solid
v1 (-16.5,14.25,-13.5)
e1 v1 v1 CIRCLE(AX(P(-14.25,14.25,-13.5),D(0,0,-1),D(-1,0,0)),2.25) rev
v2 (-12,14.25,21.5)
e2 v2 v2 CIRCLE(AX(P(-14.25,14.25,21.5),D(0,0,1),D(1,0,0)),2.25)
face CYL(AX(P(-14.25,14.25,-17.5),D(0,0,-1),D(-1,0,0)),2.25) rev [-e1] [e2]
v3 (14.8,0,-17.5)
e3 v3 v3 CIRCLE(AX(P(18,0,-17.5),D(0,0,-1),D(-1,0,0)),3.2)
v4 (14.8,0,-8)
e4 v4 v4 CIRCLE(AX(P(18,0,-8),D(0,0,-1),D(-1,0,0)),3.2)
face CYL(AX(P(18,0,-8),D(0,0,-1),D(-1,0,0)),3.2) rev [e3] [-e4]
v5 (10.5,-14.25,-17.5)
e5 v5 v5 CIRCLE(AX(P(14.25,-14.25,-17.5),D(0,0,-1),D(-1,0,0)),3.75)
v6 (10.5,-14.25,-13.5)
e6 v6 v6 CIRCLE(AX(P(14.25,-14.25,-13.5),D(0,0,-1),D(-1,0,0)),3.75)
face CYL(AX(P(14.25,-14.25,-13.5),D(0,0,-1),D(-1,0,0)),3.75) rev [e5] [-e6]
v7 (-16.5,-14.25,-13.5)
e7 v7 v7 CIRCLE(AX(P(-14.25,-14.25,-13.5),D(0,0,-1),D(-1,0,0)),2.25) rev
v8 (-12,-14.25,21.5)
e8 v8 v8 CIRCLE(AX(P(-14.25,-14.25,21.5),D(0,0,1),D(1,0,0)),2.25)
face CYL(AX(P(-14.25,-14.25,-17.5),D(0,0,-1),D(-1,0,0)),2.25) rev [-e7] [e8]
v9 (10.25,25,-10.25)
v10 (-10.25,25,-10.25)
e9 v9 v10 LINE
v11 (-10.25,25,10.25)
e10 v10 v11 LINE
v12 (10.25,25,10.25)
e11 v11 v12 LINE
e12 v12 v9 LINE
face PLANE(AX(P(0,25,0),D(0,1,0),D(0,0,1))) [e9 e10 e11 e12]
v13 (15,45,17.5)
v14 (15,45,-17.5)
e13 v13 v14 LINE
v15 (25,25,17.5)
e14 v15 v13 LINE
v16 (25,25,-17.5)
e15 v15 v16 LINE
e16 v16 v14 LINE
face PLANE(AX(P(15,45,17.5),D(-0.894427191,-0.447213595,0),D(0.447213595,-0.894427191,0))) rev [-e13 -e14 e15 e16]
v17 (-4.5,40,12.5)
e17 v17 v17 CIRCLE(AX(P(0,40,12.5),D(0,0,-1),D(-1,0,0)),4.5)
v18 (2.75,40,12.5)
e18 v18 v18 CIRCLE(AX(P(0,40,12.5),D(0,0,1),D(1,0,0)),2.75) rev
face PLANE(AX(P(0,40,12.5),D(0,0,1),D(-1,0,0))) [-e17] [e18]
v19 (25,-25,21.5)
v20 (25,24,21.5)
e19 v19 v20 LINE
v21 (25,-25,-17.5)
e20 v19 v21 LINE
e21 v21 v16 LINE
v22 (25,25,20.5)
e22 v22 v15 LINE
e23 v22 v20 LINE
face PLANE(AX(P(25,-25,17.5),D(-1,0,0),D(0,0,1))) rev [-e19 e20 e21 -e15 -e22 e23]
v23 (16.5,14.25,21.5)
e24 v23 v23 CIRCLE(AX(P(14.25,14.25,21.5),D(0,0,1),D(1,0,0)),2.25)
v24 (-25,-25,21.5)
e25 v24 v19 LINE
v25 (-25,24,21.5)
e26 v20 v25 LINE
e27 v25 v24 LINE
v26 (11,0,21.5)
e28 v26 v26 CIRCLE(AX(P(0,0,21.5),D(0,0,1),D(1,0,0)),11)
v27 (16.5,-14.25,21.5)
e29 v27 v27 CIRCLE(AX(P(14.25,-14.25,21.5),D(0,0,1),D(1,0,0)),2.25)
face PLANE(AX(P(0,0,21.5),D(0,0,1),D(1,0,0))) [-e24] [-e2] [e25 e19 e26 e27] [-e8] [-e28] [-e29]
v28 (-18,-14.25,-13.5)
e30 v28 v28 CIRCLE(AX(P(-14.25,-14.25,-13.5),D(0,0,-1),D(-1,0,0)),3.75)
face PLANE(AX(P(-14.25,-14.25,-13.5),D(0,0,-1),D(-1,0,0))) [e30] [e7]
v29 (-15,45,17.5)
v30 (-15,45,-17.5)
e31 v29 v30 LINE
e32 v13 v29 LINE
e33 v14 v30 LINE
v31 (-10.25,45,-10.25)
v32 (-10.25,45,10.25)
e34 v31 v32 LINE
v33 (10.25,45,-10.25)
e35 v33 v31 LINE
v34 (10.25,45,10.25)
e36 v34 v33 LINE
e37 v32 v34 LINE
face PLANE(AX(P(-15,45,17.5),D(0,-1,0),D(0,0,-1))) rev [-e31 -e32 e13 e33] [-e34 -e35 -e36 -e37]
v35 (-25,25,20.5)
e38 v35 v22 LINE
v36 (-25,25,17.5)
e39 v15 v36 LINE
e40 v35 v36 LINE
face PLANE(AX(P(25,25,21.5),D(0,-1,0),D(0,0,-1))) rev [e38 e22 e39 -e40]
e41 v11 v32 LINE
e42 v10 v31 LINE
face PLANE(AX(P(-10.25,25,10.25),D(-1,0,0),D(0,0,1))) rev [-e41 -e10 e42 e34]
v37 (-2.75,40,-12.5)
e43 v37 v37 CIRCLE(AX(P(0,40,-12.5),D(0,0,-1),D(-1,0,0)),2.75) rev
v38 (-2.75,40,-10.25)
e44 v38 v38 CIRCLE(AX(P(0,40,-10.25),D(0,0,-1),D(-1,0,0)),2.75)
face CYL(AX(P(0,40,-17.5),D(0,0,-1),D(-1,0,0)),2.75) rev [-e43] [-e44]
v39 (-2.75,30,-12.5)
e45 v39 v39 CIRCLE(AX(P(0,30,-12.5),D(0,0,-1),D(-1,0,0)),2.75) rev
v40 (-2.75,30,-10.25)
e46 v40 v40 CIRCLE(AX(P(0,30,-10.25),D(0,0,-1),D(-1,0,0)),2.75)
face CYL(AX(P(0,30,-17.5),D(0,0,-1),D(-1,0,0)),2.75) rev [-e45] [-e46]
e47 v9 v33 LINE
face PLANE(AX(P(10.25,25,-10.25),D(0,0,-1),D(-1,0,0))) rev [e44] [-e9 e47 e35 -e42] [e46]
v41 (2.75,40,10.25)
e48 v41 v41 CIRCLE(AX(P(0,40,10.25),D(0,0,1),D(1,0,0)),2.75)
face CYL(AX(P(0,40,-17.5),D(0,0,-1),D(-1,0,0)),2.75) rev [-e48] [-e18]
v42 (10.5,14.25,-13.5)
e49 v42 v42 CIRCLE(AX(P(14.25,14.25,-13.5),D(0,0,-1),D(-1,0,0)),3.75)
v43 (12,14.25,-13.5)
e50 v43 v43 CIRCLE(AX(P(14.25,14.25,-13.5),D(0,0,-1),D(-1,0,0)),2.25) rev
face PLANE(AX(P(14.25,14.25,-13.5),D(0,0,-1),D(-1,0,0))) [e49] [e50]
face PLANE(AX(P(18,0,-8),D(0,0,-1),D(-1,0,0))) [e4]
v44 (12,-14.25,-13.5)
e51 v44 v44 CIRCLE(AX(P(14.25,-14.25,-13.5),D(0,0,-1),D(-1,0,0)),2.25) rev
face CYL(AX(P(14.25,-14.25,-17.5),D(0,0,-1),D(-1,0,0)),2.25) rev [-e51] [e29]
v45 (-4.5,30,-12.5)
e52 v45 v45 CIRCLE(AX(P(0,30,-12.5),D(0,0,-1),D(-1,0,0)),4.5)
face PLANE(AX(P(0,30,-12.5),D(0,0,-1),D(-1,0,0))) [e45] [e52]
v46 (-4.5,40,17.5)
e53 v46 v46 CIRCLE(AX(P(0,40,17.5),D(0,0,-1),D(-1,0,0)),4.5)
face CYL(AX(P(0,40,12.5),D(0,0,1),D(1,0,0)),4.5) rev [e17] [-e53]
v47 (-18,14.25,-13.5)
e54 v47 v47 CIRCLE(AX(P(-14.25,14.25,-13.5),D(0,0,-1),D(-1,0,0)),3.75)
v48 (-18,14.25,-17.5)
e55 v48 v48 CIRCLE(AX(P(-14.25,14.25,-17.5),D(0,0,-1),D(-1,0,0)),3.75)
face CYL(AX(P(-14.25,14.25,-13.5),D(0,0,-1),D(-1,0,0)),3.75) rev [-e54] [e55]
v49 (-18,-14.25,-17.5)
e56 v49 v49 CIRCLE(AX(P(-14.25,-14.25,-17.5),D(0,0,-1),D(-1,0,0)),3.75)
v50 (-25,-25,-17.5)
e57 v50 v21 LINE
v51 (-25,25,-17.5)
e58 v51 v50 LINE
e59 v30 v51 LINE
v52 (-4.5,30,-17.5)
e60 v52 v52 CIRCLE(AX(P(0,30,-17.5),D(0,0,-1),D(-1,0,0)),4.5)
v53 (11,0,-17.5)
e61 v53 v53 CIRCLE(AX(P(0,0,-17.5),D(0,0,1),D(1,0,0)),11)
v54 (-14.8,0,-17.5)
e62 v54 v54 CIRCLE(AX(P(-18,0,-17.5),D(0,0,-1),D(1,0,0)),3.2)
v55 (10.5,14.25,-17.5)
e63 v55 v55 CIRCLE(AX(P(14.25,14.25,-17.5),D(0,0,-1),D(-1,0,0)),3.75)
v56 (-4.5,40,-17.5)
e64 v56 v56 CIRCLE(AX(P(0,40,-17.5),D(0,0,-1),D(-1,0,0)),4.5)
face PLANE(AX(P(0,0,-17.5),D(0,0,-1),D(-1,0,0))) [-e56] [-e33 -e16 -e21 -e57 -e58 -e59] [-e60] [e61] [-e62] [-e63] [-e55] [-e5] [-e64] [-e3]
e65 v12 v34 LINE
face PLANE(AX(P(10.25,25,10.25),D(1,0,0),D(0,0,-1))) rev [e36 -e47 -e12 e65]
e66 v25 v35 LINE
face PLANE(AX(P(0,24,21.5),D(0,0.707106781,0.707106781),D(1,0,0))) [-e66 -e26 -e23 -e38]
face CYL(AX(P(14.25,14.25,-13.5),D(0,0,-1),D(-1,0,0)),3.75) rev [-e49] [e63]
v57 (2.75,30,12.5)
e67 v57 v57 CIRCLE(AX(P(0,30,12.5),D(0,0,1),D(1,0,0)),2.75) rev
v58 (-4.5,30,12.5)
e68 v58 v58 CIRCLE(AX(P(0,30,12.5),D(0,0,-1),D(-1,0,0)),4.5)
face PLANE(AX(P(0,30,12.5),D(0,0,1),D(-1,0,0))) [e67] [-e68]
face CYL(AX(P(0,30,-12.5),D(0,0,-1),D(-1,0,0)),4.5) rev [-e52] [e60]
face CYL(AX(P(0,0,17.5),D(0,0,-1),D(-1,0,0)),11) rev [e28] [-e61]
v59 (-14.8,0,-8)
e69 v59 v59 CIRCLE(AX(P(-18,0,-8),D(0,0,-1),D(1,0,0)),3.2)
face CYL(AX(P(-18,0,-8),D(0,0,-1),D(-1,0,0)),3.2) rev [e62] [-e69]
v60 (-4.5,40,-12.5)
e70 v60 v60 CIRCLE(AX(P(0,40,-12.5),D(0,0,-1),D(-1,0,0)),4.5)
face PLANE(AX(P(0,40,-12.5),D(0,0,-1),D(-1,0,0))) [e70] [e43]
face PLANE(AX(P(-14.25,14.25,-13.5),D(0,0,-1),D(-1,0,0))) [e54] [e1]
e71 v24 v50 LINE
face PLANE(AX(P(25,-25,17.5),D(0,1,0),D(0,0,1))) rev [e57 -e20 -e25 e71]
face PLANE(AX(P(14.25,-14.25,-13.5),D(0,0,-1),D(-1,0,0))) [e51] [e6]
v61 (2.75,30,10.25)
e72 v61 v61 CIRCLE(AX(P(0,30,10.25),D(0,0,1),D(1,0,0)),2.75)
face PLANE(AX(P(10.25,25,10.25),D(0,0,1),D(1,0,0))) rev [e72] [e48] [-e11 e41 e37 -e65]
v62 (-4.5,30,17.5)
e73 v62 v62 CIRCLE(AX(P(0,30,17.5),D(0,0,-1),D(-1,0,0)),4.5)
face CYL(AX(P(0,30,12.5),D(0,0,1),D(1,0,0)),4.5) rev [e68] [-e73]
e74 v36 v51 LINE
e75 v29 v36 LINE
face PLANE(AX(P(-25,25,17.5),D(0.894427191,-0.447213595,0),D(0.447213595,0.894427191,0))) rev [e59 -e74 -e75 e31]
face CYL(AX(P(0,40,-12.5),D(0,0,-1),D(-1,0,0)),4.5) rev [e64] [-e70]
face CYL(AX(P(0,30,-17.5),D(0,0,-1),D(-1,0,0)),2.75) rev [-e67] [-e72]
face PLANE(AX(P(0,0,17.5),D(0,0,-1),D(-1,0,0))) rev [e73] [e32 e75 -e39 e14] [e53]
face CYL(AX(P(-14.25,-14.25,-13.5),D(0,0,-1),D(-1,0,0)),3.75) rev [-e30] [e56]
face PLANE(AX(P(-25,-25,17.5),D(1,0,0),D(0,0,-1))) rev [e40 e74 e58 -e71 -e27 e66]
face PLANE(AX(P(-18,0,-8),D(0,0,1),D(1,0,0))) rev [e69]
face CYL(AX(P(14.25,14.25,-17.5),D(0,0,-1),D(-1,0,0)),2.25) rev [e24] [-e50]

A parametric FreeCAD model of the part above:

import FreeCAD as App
import Part
import Sketcher
from FreeCAD import Vector
Q = App.Units.Quantity


def edges_at(feature, points):
    """Names of the edges that pass closest to the given points."""
    edges = feature.Shape.Edges
    near = lambda p: min(range(len(edges)), key=lambda i: edges[i].distToShape(Part.Vertex(*p))[0])
    return sorted({f"Edge{near(p) + 1}" for p in points})


def add_polygon(sketch, points):
    """Adds a closed chain of lines whose ends are joined by coincident constraints."""
    first, n = sketch.GeometryCount, len(points)
    for a, b in zip(points, points[1:] + points[:1]):
        sketch.addGeometry(Part.LineSegment(App.Vector(*a, 0), App.Vector(*b, 0)), False)
    for i in range(n):
        sketch.addConstraint(Sketcher.Constraint("Coincident", first + i, 2, first + (i + 1) % n, 1))

doc = App.newDocument("Part")
body = doc.addObject("PartDesign::Body", "Body")

# Sketch on XY plane
sketch1 = doc.addObject("Sketcher::SketchObject", "Sketch")
body.addObject(sketch1)
sketch1.AttachmentSupport = (doc.XY_Plane, [""])
sketch1.MapMode = "FlatFace"
add_polygon(sketch1, [(-15, 45), (-25, 25), (-25, -25), (25, -25), (25, 25), (15, 45)])  # lines 0-5
sketch1.addGeometry(Part.Circle(Vector(0, 0, 0), Vector(0, 0, 1), 11), False)  # 6
sketch1.addConstraint([
    Sketcher.Constraint("Vertical", 1),
    Sketcher.Constraint("Horizontal", 2),
    Sketcher.Constraint("Vertical", 3),
    Sketcher.Constraint("Horizontal", 5),
    Sketcher.Constraint("Coincident", 6, 3, -1, 1),
    Sketcher.Constraint("Symmetric", 0, 2, 2, 2, -1, 1),
    Sketcher.Constraint("Horizontal", 0, 2, 3, 2),
    Sketcher.Constraint("Equal", 2, 1),
    Sketcher.Constraint("Equal", 0, 4),
    Sketcher.Constraint("Diameter", 6, Q("22 mm")),
    Sketcher.Constraint("DistanceX", 2, 1, 2, 2, Q("50 mm")),
    Sketcher.Constraint("DistanceX", 5, 2, 5, 1, Q("30 mm")),
    Sketcher.Constraint("DistanceY", -1, 1, 4, 2, Q("45 mm")),
])
pad1 = doc.addObject("PartDesign::Pad", "Pad")
body.addObject(pad1)
pad1.Profile = sketch1
pad1.Length = 35
pad1.Midplane = True

# Sketch on XZ plane
sketch2 = doc.addObject("Sketcher::SketchObject", "Sketch001")
body.addObject(sketch2)
sketch2.AttachmentSupport = (doc.XZ_Plane, [""])
sketch2.MapMode = "FlatFace"
sketch2.AttachmentOffset = App.Placement(Vector(0, 0, -45), App.Rotation())
add_polygon(sketch2, [(-10, -10), (-10, 10), (10, 10), (10, -10)])  # lines 0-3
sketch2.addConstraint([
    Sketcher.Constraint("Vertical", 0),
    Sketcher.Constraint("Horizontal", 1),
    Sketcher.Constraint("Vertical", 2),
    Sketcher.Constraint("Horizontal", 3),
    Sketcher.Constraint("Symmetric", 0, 2, 2, 2, -1, 1),
    Sketcher.Constraint("Equal", 3, 0),
    Sketcher.Constraint("DistanceX", 1, 1, 1, 2, Q("20.5 mm")),
])
pocket1 = doc.addObject("PartDesign::Pocket", "Pocket")
body.addObject(pocket1)
pocket1.Profile = sketch2
pocket1.Length = 20
pocket1.Reversed = True

# Sketch on XY plane
sketch3 = doc.addObject("Sketcher::SketchObject", "Sketch002")
body.addObject(sketch3)
sketch3.AttachmentSupport = (doc.XY_Plane, [""])
sketch3.MapMode = "FlatFace"
sketch3.AttachmentOffset = App.Placement(Vector(0, 0, -17.5), App.Rotation())
sketch3.addGeometry([
    Part.Circle(Vector(0, 0, 0), Vector(0, 0, 1), 2.2),  # 0
    Part.Circle(Vector(14.2, 14.2, 0), Vector(0, 0, 1), 2.2),  # 1
    Part.Circle(Vector(-14.2, -14.2, 0), Vector(0, 0, 1), 2.2),  # 2
    Part.Circle(Vector(-14.2, 14.2, 0), Vector(0, 0, 1), 2.2),  # 3
    Part.Circle(Vector(14.2, -14.2, 0), Vector(0, 0, 1), 2.2),  # 4
], False)
sketch3.addConstraint([
    Sketcher.Constraint("Coincident", 0, 3, -1, 1),
    Sketcher.Constraint("Equal", 0, 1),
    Sketcher.Constraint("Equal", 1, 2),
    Sketcher.Constraint("Equal", 2, 3),
    Sketcher.Constraint("Equal", 3, 4),
    Sketcher.Constraint("Symmetric", 1, 3, 2, 3, -1, 1),
    Sketcher.Constraint("Symmetric", 3, 3, 4, 3, -1, 1),
    Sketcher.Constraint("Symmetric", 1, 3, 3, 3, -2),
    Sketcher.Constraint("Diameter", 0, Q("4.5 mm")),
    Sketcher.Constraint("DistanceX", 2, 3, 1, 3, Q("28.5 mm")),
    Sketcher.Constraint("DistanceY", 2, 3, 1, 3, Q("28.5 mm")),
])
doc.recompute()
hole = doc.addObject("PartDesign::Hole", "Hole")
body.addObject(hole)
hole.Profile = sketch3
hole.ThreadType = "None"
hole.Diameter = 4.5
hole.DepthType = "ThroughAll"
hole.Reversed = True

# Sketch on XY plane
sketch4 = doc.addObject("Sketcher::SketchObject", "Sketch003")
body.addObject(sketch4)
sketch4.AttachmentSupport = (doc.XY_Plane, [""])
sketch4.MapMode = "FlatFace"
sketch4.AttachmentOffset = App.Placement(Vector(0, 0, -17.5), App.Rotation())
sketch4.addGeometry([
    Part.Circle(Vector(0, 40, 0), Vector(0, 0, 1), 2.8),
    Part.Circle(Vector(0, 30, 0), Vector(0, 0, 1), 2.8),
], False)
sketch4.addConstraint([
    Sketcher.Constraint("Equal", 0, 1),
    Sketcher.Constraint("PointOnObject", 0, 3, -2),
    Sketcher.Constraint("PointOnObject", 1, 3, -2),
    Sketcher.Constraint("Diameter", 0, Q("5.5 mm")),
    Sketcher.Constraint("DistanceY", -1, 1, 0, 3, Q("40 mm")),
    Sketcher.Constraint("DistanceY", -1, 1, 1, 3, Q("30 mm")),
])
doc.recompute()
hole2 = doc.addObject("PartDesign::Hole", "Hole001")
body.addObject(hole2)
hole2.Profile = sketch4
hole2.ThreadType = "None"
hole2.Diameter = 5.5
hole2.DepthType = "ThroughAll"
hole2.Reversed = True

# Sketch on XY plane
sketch5 = doc.addObject("Sketcher::SketchObject", "Sketch004")
body.addObject(sketch5)
sketch5.AttachmentSupport = (doc.XY_Plane, [""])
sketch5.MapMode = "FlatFace"
sketch5.AttachmentOffset = App.Placement(Vector(0, 0, 21.5), App.Rotation())
add_polygon(sketch5, [(-25, 25), (-25, -25), (25, -25), (25, 25)])  # lines 0-3
sketch5.addGeometry(Part.Circle(Vector(-14.2, -14.2, 0), Vector(0, 0, 1), 2.2), False)  # 4
sketch5.addGeometry(Part.Circle(Vector(14.2, -14.2, 0), Vector(0, 0, 1), 2.2), False)  # 5
sketch5.addGeometry(Part.Circle(Vector(-14.2, 14.2, 0), Vector(0, 0, 1), 2.2), False)  # 6
sketch5.addGeometry(Part.Circle(Vector(0, 0, 0), Vector(0, 0, 1), 11), False)  # 7
sketch5.addGeometry(Part.Circle(Vector(14.2, 14.2, 0), Vector(0, 0, 1), 2.2), False)  # 8
sketch5.addConstraint([
    Sketcher.Constraint("Vertical", 0),
    Sketcher.Constraint("Horizontal", 1),
    Sketcher.Constraint("Vertical", 2),
    Sketcher.Constraint("Horizontal", 3),
    Sketcher.Constraint("Coincident", 7, 3, -1, 1),
    Sketcher.Constraint("Equal", 4, 5),
    Sketcher.Constraint("Equal", 5, 6),
    Sketcher.Constraint("Equal", 6, 8),
    Sketcher.Constraint("Symmetric", 5, 3, 6, 3, -1, 1),
    Sketcher.Constraint("Symmetric", 4, 3, 8, 3, -1, 1),
    Sketcher.Constraint("Symmetric", 0, 2, 2, 2, -1, 1),
    Sketcher.Constraint("Symmetric", 4, 3, 5, 3, -2),
    Sketcher.Constraint("Equal", 3, 0),
    Sketcher.Constraint("Diameter", 7, Q("22 mm")),
    Sketcher.Constraint("Diameter", 4, Q("4.5 mm")),
    Sketcher.Constraint("DistanceX", 1, 1, 1, 2, Q("50 mm")),
    Sketcher.Constraint("DistanceX", 4, 3, 5, 3, Q("28.5 mm")),
    Sketcher.Constraint("DistanceY", 4, 3, 6, 3, Q("28.5 mm")),
])
pad2 = doc.addObject("PartDesign::Pad", "Pad001")
body.addObject(pad2)
pad2.Profile = sketch5
pad2.Length = 4
pad2.Reversed = True

# Sketch on XY plane
sketch6 = doc.addObject("Sketcher::SketchObject", "Sketch005")
body.addObject(sketch6)
sketch6.AttachmentSupport = (doc.XY_Plane, [""])
sketch6.MapMode = "FlatFace"
sketch6.AttachmentOffset = App.Placement(Vector(0, 0, -17.5), App.Rotation())
sketch6.addGeometry([
    Part.Circle(Vector(18, 0, 0), Vector(0, 0, 1), 3.2),
    Part.Circle(Vector(-18, 0, 0), Vector(0, 0, 1), 3.2),
], False)
sketch6.addConstraint([
    Sketcher.Constraint("Equal", 0, 1),
    Sketcher.Constraint("Symmetric", 0, 3, 1, 3, -1, 1),
    Sketcher.Constraint("PointOnObject", 0, 3, -1),
    Sketcher.Constraint("Diameter", 0, Q("6.4 mm")),
    Sketcher.Constraint("DistanceX", -1, 1, 0, 3, Q("18 mm")),
])
pocket2 = doc.addObject("PartDesign::Pocket", "Pocket001")
body.addObject(pocket2)
pocket2.Profile = sketch6
pocket2.Length = 9.5
pocket2.Reversed = True

# Sketch on XY plane
sketch7 = doc.addObject("Sketcher::SketchObject", "Sketch006")
body.addObject(sketch7)
sketch7.AttachmentSupport = (doc.XY_Plane, [""])
sketch7.MapMode = "FlatFace"
sketch7.AttachmentOffset = App.Placement(Vector(0, 0, -17.5), App.Rotation())
sketch7.addGeometry([
    Part.Circle(Vector(0, 40, 0), Vector(0, 0, 1), 4.5),
    Part.Circle(Vector(0, 30, 0), Vector(0, 0, 1), 4.5),
], False)
sketch7.addConstraint([
    Sketcher.Constraint("Equal", 0, 1),
    Sketcher.Constraint("PointOnObject", 0, 3, -2),
    Sketcher.Constraint("PointOnObject", 1, 3, -2),
    Sketcher.Constraint("Diameter", 0, Q("9 mm")),
    Sketcher.Constraint("DistanceY", -1, 1, 0, 3, Q("40 mm")),
    Sketcher.Constraint("DistanceY", -1, 1, 1, 3, Q("30 mm")),
])
pocket3 = doc.addObject("PartDesign::Pocket", "Pocket002")
body.addObject(pocket3)
pocket3.Profile = sketch7
pocket3.Length = 5
pocket3.Reversed = True
doc.recompute()

mirrored = doc.addObject("PartDesign::Mirrored", "Mirrored")
body.addObject(mirrored)
mirrored.Originals = [pocket3]
mirrored.MirrorPlane = (doc.XY_Plane, [""])
body.Tip = mirrored

# Sketch on XY plane
sketch8 = doc.addObject("Sketcher::SketchObject", "Sketch007")
body.addObject(sketch8)
sketch8.AttachmentSupport = (doc.XY_Plane, [""])
sketch8.MapMode = "FlatFace"
sketch8.AttachmentOffset = App.Placement(Vector(0, 0, -17.5), App.Rotation())
sketch8.addGeometry([
    Part.Circle(Vector(14.2, 14.2, 0), Vector(0, 0, 1), 3.8),
    Part.Circle(Vector(-14.2, 14.2, 0), Vector(0, 0, 1), 3.8),
    Part.Circle(Vector(-14.2, -14.2, 0), Vector(0, 0, 1), 3.8),
    Part.Circle(Vector(14.2, -14.2, 0), Vector(0, 0, 1), 3.8),
], False)
sketch8.addConstraint([
    Sketcher.Constraint("Equal", 0, 1),
    Sketcher.Constraint("Equal", 1, 2),
    Sketcher.Constraint("Equal", 2, 3),
    Sketcher.Constraint("Symmetric", 0, 3, 2, 3, -1, 1),
    Sketcher.Constraint("Symmetric", 1, 3, 3, 3, -1, 1),
    Sketcher.Constraint("Symmetric", 0, 3, 1, 3, -2),
    Sketcher.Constraint("Diameter", 0, Q("7.5 mm")),
    Sketcher.Constraint("DistanceX", 1, 3, 0, 3, Q("28.5 mm")),
    Sketcher.Constraint("DistanceY", 2, 3, 1, 3, Q("28.5 mm")),
])
pocket4 = doc.addObject("PartDesign::Pocket", "Pocket003")
body.addObject(pocket4)
pocket4.Profile = sketch8
pocket4.Length = 4
pocket4.Reversed = True
doc.recompute()

chamfer = doc.addObject("PartDesign::Chamfer", "Chamfer")
body.addObject(chamfer)
chamfer.Base = (pocket4, edges_at(pocket4, [(0, 25, 21.5)]))
chamfer.Size = 1

doc.recompute()
